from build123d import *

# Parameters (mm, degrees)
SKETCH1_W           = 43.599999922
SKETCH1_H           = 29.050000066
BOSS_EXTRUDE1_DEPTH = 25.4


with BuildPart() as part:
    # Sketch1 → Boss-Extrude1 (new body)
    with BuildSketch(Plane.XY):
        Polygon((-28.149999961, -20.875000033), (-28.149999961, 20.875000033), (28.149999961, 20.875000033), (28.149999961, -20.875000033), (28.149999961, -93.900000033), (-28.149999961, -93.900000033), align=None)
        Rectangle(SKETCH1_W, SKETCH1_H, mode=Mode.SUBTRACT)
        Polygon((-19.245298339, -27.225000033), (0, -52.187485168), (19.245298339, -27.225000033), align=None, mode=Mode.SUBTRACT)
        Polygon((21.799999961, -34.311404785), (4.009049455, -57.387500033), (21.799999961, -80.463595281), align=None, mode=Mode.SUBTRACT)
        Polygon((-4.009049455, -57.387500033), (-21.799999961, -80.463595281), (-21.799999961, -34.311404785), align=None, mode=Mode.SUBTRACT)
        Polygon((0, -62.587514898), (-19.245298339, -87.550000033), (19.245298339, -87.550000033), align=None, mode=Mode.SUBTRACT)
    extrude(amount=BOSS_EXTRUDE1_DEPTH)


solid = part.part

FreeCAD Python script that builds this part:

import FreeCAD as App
import Part
import Sketcher
Q = App.Units.Quantity

doc = App.newDocument("Part")
body = doc.addObject("PartDesign::Body", "Body")

sketch1 = doc.addObject("Sketcher::SketchObject", "Sketch")
body.addObject(sketch1)
sketch1.AttachmentSupport = (doc.XY_Plane, [""])
sketch1.MapMode = "FlatFace"
sketch1.addGeometry([
    Part.LineSegment(App.Vector(-28.15, 20.875, 0), App.Vector(-28.15, -93.9, 0)),
    Part.LineSegment(App.Vector(-28.15, -93.9, 0), App.Vector(28.15, -93.9, 0)),
    Part.LineSegment(App.Vector(28.15, -93.9, 0), App.Vector(28.15, 20.875, 0)),
    Part.LineSegment(App.Vector(28.15, 20.875, 0), App.Vector(-28.15, 20.875, 0)),
    Part.LineSegment(App.Vector(21.8, -34.311405, 0), App.Vector(21.8, -80.463595, 0)),
    Part.LineSegment(App.Vector(21.8, -80.463595, 0), App.Vector(4.009049, -57.3875, 0)),
    Part.LineSegment(App.Vector(4.009049, -57.3875, 0), App.Vector(21.8, -34.311405, 0)),
    Part.LineSegment(App.Vector(0, -62.587515, 0), App.Vector(19.245298, -87.55, 0)),
    Part.LineSegment(App.Vector(19.245298, -87.55, 0), App.Vector(-19.245298, -87.55, 0)),
    Part.LineSegment(App.Vector(-19.245298, -87.55, 0), App.Vector(0, -62.587515, 0)),
    Part.LineSegment(App.Vector(-19.245298, -27.225, 0), App.Vector(19.245298, -27.225, 0)),
    Part.LineSegment(App.Vector(19.245298, -27.225, 0), App.Vector(0, -52.187485, 0)),
    Part.LineSegment(App.Vector(0, -52.187485, 0), App.Vector(-19.245298, -27.225, 0)),
    Part.LineSegment(App.Vector(-4.009049, -57.3875, 0), App.Vector(-21.8, -80.463595, 0)),
    Part.LineSegment(App.Vector(-21.8, -80.463595, 0), App.Vector(-21.8, -34.311405, 0)),
    Part.LineSegment(App.Vector(-21.8, -34.311405, 0), App.Vector(-4.009049, -57.3875, 0)),
    Part.LineSegment(App.Vector(-21.8, -14.525, 0), App.Vector(-21.8, 14.525, 0)),
    Part.LineSegment(App.Vector(-21.8, 14.525, 0), App.Vector(21.8, 14.525, 0)),
    Part.LineSegment(App.Vector(21.8, 14.525, 0), App.Vector(21.8, -14.525, 0)),
    Part.LineSegment(App.Vector(21.8, -14.525, 0), App.Vector(-21.8, -14.525, 0)),
], False)
sketch1.addConstraint([
    Sketcher.Constraint("Coincident", 0, 2, 1, 1),
    Sketcher.Constraint("Coincident", 1, 2, 2, 1),
    Sketcher.Constraint("Coincident", 2, 2, 3, 1),
    Sketcher.Constraint("Coincident", 3, 2, 0, 1),
    Sketcher.Constraint("Coincident", 4, 2, 5, 1),
    Sketcher.Constraint("Coincident", 5, 2, 6, 1),
    Sketcher.Constraint("Coincident", 6, 2, 4, 1),
    Sketcher.Constraint("Coincident", 7, 2, 8, 1),
    Sketcher.Constraint("Coincident", 8, 2, 9, 1),
    Sketcher.Constraint("Coincident", 9, 2, 7, 1),
    Sketcher.Constraint("Coincident", 10, 2, 11, 1),
    Sketcher.Constraint("Coincident", 11, 2, 12, 1),
    Sketcher.Constraint("Coincident", 12, 2, 10, 1),
    Sketcher.Constraint("Coincident", 13, 2, 14, 1),
    Sketcher.Constraint("Coincident", 14, 2, 15, 1),
    Sketcher.Constraint("Coincident", 15, 2, 13, 1),
    Sketcher.Constraint("Coincident", 16, 2, 17, 1),
    Sketcher.Constraint("Coincident", 17, 2, 18, 1),
    Sketcher.Constraint("Coincident", 18, 2, 19, 1),
    Sketcher.Constraint("Coincident", 19, 2, 16, 1),
    Sketcher.Constraint("Vertical", 0),
    Sketcher.Constraint("Horizontal", 1),
    Sketcher.Constraint("Vertical", 2),
    Sketcher.Constraint("Horizontal", 3),
    Sketcher.Constraint("Vertical", 4),
    Sketcher.Constraint("Horizontal", 8),
    Sketcher.Constraint("Horizontal", 10),
    Sketcher.Constraint("Vertical", 14),
    Sketcher.Constraint("Vertical", 16),
    Sketcher.Constraint("Horizontal", 17),
    Sketcher.Constraint("Vertical", 18),
    Sketcher.Constraint("Horizontal", 19),
    Sketcher.Constraint("Symmetric", 16, 2, 18, 2, -1, 1),
    Sketcher.Constraint("Symmetric", 4, 2, 13, 2, -2),
    Sketcher.Constraint("Symmetric", 5, 2, 15, 2, -2),
    Sketcher.Constraint("PointOnObject", 9, 2, -2),
    Sketcher.Constraint("PointOnObject", 11, 2, -2),
    Sketcher.Constraint("Parallel", 5, 7),
    Sketcher.Constraint("Parallel", 6, 9),
    Sketcher.Constraint("Parallel", 9, 11),
    Sketcher.Constraint("Parallel", 7, 12),
    Sketcher.Constraint("Parallel", 11, 13),
    Sketcher.Constraint("Parallel", 12, 15),
    Sketcher.Constraint("Vertical", 7, 2, 10, 2),
    Sketcher.Constraint("Vertical", 14, 2, 16, 2),
    Sketcher.Constraint("DistanceX", 1, 1, 1, 2, Q("56.3 mm")),
    Sketcher.Constraint("DistanceX", 17, 1, 17, 2, Q("43.6 mm")),
    Sketcher.Constraint("DistanceY", 16, 1, 16, 2, Q("29.05 mm")),
    Sketcher.Constraint("DistanceY", 0, 2, -1, 1, Q("93.9 mm")),
    Sketcher.Constraint("DistanceY", 10, 2, 2, 2, Q("48.1 mm")),
    Sketcher.Constraint("DistanceY", 10, 2, 18, 2, Q("12.7 mm")),
    Sketcher.Constraint("DistanceX", 0, 2, -1, 1, Q("28.15 mm")),
    Sketcher.Constraint("DistanceY", 7, 2, -1, 1, Q("87.55 mm")),
    Sketcher.Constraint("DistanceY", 4, 2, 4, 1, Q("46.15219 mm")),
    Sketcher.Constraint("DistanceY", 5, 2, -1, 1, Q("57.3875 mm")),
    Sketcher.Constraint("DistanceX", -1, 1, 7, 2, Q("19.245298 mm")),
    Sketcher.Constraint("DistanceX", 15, 2, 5, 2, Q("8.018099 mm")),
])
pad1 = doc.addObject("PartDesign::Pad", "Pad")
body.addObject(pad1)
pad1.Profile = sketch1
pad1.Length = 25.4

doc.recompute()
